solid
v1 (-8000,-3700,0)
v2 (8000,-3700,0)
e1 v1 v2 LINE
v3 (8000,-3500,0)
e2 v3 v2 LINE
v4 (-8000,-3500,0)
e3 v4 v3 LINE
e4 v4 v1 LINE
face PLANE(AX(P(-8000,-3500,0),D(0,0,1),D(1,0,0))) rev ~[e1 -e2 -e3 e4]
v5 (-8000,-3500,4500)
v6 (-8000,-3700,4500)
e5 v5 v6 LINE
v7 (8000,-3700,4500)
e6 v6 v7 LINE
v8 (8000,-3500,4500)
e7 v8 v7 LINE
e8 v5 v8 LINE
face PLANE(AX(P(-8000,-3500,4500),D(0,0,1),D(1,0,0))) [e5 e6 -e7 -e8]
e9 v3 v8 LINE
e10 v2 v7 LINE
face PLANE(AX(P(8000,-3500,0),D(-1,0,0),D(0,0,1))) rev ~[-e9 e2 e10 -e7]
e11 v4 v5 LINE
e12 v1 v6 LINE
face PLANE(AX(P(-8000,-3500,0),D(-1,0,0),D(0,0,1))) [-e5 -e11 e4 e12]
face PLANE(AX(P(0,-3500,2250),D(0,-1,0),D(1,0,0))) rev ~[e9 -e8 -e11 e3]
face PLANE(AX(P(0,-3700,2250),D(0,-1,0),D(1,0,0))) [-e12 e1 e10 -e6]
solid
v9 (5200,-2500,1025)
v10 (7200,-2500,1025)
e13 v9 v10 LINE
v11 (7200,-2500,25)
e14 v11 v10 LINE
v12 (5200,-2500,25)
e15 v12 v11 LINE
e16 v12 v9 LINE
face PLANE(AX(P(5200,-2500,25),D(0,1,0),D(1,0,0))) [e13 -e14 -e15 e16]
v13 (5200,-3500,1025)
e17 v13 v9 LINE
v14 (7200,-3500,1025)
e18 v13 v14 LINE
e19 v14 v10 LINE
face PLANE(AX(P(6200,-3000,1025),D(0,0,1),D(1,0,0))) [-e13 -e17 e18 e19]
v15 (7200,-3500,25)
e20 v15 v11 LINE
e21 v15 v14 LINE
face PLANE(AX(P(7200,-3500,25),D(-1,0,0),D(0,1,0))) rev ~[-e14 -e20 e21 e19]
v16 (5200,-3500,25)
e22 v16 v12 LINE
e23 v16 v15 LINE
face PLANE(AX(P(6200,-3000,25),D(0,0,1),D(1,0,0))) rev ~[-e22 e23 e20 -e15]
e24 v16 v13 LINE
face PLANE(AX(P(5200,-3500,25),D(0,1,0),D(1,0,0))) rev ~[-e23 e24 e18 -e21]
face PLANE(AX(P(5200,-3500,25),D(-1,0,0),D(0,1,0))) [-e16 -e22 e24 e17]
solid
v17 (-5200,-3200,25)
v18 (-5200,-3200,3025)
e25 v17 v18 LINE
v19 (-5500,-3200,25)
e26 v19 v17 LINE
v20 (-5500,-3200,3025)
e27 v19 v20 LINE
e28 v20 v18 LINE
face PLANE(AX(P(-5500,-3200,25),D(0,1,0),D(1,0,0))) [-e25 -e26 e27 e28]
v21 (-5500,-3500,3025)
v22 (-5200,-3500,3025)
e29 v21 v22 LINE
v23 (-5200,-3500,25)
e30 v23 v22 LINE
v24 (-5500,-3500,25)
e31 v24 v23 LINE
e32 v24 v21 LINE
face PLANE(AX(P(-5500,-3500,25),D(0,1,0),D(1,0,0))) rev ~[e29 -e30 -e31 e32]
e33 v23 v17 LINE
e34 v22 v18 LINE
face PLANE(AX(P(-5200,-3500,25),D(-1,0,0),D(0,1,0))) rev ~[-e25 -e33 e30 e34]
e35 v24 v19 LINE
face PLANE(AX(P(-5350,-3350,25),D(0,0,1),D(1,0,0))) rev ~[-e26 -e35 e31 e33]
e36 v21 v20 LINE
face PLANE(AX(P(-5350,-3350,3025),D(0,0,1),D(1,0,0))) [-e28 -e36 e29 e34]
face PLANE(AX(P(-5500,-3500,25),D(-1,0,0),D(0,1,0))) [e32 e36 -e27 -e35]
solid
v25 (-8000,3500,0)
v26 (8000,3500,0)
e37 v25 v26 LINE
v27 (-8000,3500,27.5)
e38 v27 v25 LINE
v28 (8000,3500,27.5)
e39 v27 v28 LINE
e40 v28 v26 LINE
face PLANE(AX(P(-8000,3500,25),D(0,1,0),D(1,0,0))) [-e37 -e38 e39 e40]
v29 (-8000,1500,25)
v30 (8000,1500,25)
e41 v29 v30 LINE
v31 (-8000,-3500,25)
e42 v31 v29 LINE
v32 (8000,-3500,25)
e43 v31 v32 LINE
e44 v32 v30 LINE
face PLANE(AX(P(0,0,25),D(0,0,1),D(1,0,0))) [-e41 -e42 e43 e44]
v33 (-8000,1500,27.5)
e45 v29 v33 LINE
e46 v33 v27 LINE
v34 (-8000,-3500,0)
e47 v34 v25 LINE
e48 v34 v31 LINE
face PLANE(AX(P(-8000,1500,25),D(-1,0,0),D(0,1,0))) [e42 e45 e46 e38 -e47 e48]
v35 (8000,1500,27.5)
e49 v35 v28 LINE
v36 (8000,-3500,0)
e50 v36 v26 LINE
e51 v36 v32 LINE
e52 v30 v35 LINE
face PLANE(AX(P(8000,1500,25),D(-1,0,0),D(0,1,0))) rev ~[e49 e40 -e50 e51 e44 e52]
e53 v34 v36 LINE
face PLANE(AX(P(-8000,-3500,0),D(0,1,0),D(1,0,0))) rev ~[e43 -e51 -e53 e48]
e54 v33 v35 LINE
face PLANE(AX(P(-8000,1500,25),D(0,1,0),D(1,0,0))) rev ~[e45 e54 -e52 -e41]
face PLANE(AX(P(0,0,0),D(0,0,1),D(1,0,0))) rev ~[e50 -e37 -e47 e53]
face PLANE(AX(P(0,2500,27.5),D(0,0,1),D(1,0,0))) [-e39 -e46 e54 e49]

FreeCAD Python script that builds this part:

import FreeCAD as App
import Part
import Sketcher
from FreeCAD import Vector
Q = App.Units.Quantity

doc = App.newDocument("Part")
body = doc.addObject("PartDesign::Body", "Body")

sketch1 = body.newObject("Sketcher::SketchObject", "Sketch")
sketch1.AttachmentSupport = (doc.getObject("XY_Plane"), [""])
sketch1.MapMode = "FlatFace"
sketch1.addGeometry([
    Part.LineSegment(Vector(-8000, 3500, 0), Vector(-8000, -3500, 0)),
    Part.LineSegment(Vector(-8000, -3500, 0), Vector(8000, -3500, 0)),
    Part.LineSegment(Vector(8000, -3500, 0), Vector(8000, 3500, 0)),
    Part.LineSegment(Vector(8000, 3500, 0), Vector(-8000, 3500, 0)),
], False)
sketch1.addConstraint([
    Sketcher.Constraint("Coincident", 0, 2, 1, 1),
    Sketcher.Constraint("Coincident", 1, 2, 2, 1),
    Sketcher.Constraint("Coincident", 2, 2, 3, 1),
    Sketcher.Constraint("Coincident", 3, 2, 0, 1),
    Sketcher.Constraint("Vertical", 0),
    Sketcher.Constraint("Horizontal", 1),
    Sketcher.Constraint("Vertical", 2),
    Sketcher.Constraint("Horizontal", 3),
    Sketcher.Constraint("Symmetric", 0, 2, 2, 2, -1, 1),
    Sketcher.Constraint("DistanceX", 1, 1, 1, 2, Q("16000 mm")),
    Sketcher.Constraint("DistanceY", 0, 2, 0, 1, Q("7000 mm")),
])
pad1 = body.newObject("PartDesign::Pad", "Pad")
pad1.Profile = sketch1
pad1.Length = 25

sketch2 = body.newObject("Sketcher::SketchObject", "Sketch001")
sketch2.AttachmentSupport = (doc.getObject("XY_Plane"), [""])
sketch2.MapMode = "FlatFace"
sketch2.AttachmentOffset = App.Placement(Vector(0, 0, 25), App.Rotation())
sketch2.addGeometry([
    Part.LineSegment(Vector(-8000, 3500, 0), Vector(-8000, 1500, 0)),
    Part.LineSegment(Vector(-8000, 1500, 0), Vector(8000, 1500, 0)),
    Part.LineSegment(Vector(8000, 1500, 0), Vector(8000, 3500, 0)),
    Part.LineSegment(Vector(8000, 3500, 0), Vector(-8000, 3500, 0)),
], False)
sketch2.addConstraint([
    Sketcher.Constraint("Coincident", 0, 2, 1, 1),
    Sketcher.Constraint("Coincident", 1, 2, 2, 1),
    Sketcher.Constraint("Coincident", 2, 2, 3, 1),
    Sketcher.Constraint("Coincident", 3, 2, 0, 1),
    Sketcher.Constraint("Vertical", 0),
    Sketcher.Constraint("Horizontal", 1),
    Sketcher.Constraint("Vertical", 2),
    Sketcher.Constraint("Horizontal", 3),
    Sketcher.Constraint("DistanceX", 1, 1, 1, 2, Q("16000 mm")),
    Sketcher.Constraint("DistanceY", 0, 2, 0, 1, Q("2000 mm")),
    Sketcher.Constraint("DistanceX", 0, 2, -1, 1, Q("8000 mm")),
    Sketcher.Constraint("DistanceY", -1, 1, 0, 2, Q("1500 mm")),
])
pad2 = body.newObject("PartDesign::Pad", "Pad001")
pad2.Profile = sketch2
pad2.Length = 2.5
body2 = doc.addObject("PartDesign::Body", "Body001")

sketch3 = body2.newObject("Sketcher::SketchObject", "Sketch002")
sketch3.AttachmentSupport = (doc.getObject("XZ_Plane001"), [""])
sketch3.MapMode = "FlatFace"
sketch3.AttachmentOffset = App.Placement(Vector(0, 0, 3500), App.Rotation())
sketch3.addGeometry([
    Part.LineSegment(Vector(-8000, 4500, 0), Vector(-8000, 0, 0)),
    Part.LineSegment(Vector(-8000, 0, 0), Vector(8000, 0, 0)),
    Part.LineSegment(Vector(8000, 0, 0), Vector(8000, 4500, 0)),
    Part.LineSegment(Vector(8000, 4500, 0), Vector(-8000, 4500, 0)),
], False)
sketch3.addConstraint([
    Sketcher.Constraint("Coincident", 0, 2, 1, 1),
    Sketcher.Constraint("Coincident", 1, 2, 2, 1),
    Sketcher.Constraint("Coincident", 2, 2, 3, 1),
    Sketcher.Constraint("Coincident", 3, 2, 0, 1),
    Sketcher.Constraint("Vertical", 0),
    Sketcher.Constraint("Horizontal", 1),
    Sketcher.Constraint("Vertical", 2),
    Sketcher.Constraint("Horizontal", 3),
    Sketcher.Constraint("Symmetric", 0, 2, 1, 2, -1, 1),
    Sketcher.Constraint("DistanceX", 1, 1, 1, 2, Q("16000 mm")),
    Sketcher.Constraint("DistanceY", 0, 2, 0, 1, Q("4500 mm")),
])
pad3 = body2.newObject("PartDesign::Pad", "Pad002")
pad3.Profile = sketch3
pad3.Length = 200
body3 = doc.addObject("PartDesign::Body", "Body002")

sketch4 = body3.newObject("Sketcher::SketchObject", "Sketch003")
sketch4.AttachmentSupport = (doc.getObject("XY_Plane002"), [""])
sketch4.MapMode = "FlatFace"
sketch4.AttachmentOffset = App.Placement(Vector(0, 0, 25), App.Rotation())
sketch4.addGeometry([
    Part.LineSegment(Vector(-5500, -3200, 0), Vector(-5500, -3500, 0)),
    Part.LineSegment(Vector(-5500, -3500, 0), Vector(-5200, -3500, 0)),
    Part.LineSegment(Vector(-5200, -3500, 0), Vector(-5200, -3200, 0)),
    Part.LineSegment(Vector(-5200, -3200, 0), Vector(-5500, -3200, 0)),
], False)
sketch4.addConstraint([
    Sketcher.Constraint("Coincident", 0, 2, 1, 1),
    Sketcher.Constraint("Coincident", 1, 2, 2, 1),
    Sketcher.Constraint("Coincident", 2, 2, 3, 1),
    Sketcher.Constraint("Coincident", 3, 2, 0, 1),
    Sketcher.Constraint("Vertical", 0),
    Sketcher.Constraint("Horizontal", 1),
    Sketcher.Constraint("Vertical", 2),
    Sketcher.Constraint("Horizontal", 3),
    Sketcher.Constraint("Equal", 3, 0),
    Sketcher.Constraint("DistanceX", 1, 1, 1, 2, Q("300 mm")),
    Sketcher.Constraint("DistanceX", 0, 2, -1, 1, Q("5500 mm")),
    Sketcher.Constraint("DistanceY", 0, 2, -1, 1, Q("3500 mm")),
])
pad4 = body3.newObject("PartDesign::Pad", "Pad003")
pad4.Profile = sketch4
pad4.Length = 3000
body4 = doc.addObject("PartDesign::Body", "Body003")

sketch5 = body4.newObject("Sketcher::SketchObject", "Sketch004")
sketch5.AttachmentSupport = (doc.getObject("XY_Plane003"), [""])
sketch5.MapMode = "FlatFace"
sketch5.AttachmentOffset = App.Placement(Vector(0, 0, 25), App.Rotation())
sketch5.addGeometry([
    Part.LineSegment(Vector(5200, -2500, 0), Vector(5200, -3500, 0)),
    Part.LineSegment(Vector(5200, -3500, 0), Vector(7200, -3500, 0)),
    Part.LineSegment(Vector(7200, -3500, 0), Vector(7200, -2500, 0)),
    Part.LineSegment(Vector(7200, -2500, 0), Vector(5200, -2500, 0)),
], False)
sketch5.addConstraint([
    Sketcher.Constraint("Coincident", 0, 2, 1, 1),
    Sketcher.Constraint("Coincident", 1, 2, 2, 1),
    Sketcher.Constraint("Coincident", 2, 2, 3, 1),
    Sketcher.Constraint("Coincident", 3, 2, 0, 1),
    Sketcher.Constraint("Vertical", 0),
    Sketcher.Constraint("Horizontal", 1),
    Sketcher.Constraint("Vertical", 2),
    Sketcher.Constraint("Horizontal", 3),
    Sketcher.Constraint("DistanceX", 1, 1, 1, 2, Q("2000 mm")),
    Sketcher.Constraint("DistanceY", 0, 2, 0, 1, Q("1000 mm")),
    Sketcher.Constraint("DistanceX", -1, 1, 0, 2, Q("5200 mm")),
    Sketcher.Constraint("DistanceY", 0, 2, -1, 1, Q("3500 mm")),
])
pad5 = body4.newObject("PartDesign::Pad", "Pad004")
pad5.Profile = sketch5
pad5.Length = 1000

doc.recompute()
